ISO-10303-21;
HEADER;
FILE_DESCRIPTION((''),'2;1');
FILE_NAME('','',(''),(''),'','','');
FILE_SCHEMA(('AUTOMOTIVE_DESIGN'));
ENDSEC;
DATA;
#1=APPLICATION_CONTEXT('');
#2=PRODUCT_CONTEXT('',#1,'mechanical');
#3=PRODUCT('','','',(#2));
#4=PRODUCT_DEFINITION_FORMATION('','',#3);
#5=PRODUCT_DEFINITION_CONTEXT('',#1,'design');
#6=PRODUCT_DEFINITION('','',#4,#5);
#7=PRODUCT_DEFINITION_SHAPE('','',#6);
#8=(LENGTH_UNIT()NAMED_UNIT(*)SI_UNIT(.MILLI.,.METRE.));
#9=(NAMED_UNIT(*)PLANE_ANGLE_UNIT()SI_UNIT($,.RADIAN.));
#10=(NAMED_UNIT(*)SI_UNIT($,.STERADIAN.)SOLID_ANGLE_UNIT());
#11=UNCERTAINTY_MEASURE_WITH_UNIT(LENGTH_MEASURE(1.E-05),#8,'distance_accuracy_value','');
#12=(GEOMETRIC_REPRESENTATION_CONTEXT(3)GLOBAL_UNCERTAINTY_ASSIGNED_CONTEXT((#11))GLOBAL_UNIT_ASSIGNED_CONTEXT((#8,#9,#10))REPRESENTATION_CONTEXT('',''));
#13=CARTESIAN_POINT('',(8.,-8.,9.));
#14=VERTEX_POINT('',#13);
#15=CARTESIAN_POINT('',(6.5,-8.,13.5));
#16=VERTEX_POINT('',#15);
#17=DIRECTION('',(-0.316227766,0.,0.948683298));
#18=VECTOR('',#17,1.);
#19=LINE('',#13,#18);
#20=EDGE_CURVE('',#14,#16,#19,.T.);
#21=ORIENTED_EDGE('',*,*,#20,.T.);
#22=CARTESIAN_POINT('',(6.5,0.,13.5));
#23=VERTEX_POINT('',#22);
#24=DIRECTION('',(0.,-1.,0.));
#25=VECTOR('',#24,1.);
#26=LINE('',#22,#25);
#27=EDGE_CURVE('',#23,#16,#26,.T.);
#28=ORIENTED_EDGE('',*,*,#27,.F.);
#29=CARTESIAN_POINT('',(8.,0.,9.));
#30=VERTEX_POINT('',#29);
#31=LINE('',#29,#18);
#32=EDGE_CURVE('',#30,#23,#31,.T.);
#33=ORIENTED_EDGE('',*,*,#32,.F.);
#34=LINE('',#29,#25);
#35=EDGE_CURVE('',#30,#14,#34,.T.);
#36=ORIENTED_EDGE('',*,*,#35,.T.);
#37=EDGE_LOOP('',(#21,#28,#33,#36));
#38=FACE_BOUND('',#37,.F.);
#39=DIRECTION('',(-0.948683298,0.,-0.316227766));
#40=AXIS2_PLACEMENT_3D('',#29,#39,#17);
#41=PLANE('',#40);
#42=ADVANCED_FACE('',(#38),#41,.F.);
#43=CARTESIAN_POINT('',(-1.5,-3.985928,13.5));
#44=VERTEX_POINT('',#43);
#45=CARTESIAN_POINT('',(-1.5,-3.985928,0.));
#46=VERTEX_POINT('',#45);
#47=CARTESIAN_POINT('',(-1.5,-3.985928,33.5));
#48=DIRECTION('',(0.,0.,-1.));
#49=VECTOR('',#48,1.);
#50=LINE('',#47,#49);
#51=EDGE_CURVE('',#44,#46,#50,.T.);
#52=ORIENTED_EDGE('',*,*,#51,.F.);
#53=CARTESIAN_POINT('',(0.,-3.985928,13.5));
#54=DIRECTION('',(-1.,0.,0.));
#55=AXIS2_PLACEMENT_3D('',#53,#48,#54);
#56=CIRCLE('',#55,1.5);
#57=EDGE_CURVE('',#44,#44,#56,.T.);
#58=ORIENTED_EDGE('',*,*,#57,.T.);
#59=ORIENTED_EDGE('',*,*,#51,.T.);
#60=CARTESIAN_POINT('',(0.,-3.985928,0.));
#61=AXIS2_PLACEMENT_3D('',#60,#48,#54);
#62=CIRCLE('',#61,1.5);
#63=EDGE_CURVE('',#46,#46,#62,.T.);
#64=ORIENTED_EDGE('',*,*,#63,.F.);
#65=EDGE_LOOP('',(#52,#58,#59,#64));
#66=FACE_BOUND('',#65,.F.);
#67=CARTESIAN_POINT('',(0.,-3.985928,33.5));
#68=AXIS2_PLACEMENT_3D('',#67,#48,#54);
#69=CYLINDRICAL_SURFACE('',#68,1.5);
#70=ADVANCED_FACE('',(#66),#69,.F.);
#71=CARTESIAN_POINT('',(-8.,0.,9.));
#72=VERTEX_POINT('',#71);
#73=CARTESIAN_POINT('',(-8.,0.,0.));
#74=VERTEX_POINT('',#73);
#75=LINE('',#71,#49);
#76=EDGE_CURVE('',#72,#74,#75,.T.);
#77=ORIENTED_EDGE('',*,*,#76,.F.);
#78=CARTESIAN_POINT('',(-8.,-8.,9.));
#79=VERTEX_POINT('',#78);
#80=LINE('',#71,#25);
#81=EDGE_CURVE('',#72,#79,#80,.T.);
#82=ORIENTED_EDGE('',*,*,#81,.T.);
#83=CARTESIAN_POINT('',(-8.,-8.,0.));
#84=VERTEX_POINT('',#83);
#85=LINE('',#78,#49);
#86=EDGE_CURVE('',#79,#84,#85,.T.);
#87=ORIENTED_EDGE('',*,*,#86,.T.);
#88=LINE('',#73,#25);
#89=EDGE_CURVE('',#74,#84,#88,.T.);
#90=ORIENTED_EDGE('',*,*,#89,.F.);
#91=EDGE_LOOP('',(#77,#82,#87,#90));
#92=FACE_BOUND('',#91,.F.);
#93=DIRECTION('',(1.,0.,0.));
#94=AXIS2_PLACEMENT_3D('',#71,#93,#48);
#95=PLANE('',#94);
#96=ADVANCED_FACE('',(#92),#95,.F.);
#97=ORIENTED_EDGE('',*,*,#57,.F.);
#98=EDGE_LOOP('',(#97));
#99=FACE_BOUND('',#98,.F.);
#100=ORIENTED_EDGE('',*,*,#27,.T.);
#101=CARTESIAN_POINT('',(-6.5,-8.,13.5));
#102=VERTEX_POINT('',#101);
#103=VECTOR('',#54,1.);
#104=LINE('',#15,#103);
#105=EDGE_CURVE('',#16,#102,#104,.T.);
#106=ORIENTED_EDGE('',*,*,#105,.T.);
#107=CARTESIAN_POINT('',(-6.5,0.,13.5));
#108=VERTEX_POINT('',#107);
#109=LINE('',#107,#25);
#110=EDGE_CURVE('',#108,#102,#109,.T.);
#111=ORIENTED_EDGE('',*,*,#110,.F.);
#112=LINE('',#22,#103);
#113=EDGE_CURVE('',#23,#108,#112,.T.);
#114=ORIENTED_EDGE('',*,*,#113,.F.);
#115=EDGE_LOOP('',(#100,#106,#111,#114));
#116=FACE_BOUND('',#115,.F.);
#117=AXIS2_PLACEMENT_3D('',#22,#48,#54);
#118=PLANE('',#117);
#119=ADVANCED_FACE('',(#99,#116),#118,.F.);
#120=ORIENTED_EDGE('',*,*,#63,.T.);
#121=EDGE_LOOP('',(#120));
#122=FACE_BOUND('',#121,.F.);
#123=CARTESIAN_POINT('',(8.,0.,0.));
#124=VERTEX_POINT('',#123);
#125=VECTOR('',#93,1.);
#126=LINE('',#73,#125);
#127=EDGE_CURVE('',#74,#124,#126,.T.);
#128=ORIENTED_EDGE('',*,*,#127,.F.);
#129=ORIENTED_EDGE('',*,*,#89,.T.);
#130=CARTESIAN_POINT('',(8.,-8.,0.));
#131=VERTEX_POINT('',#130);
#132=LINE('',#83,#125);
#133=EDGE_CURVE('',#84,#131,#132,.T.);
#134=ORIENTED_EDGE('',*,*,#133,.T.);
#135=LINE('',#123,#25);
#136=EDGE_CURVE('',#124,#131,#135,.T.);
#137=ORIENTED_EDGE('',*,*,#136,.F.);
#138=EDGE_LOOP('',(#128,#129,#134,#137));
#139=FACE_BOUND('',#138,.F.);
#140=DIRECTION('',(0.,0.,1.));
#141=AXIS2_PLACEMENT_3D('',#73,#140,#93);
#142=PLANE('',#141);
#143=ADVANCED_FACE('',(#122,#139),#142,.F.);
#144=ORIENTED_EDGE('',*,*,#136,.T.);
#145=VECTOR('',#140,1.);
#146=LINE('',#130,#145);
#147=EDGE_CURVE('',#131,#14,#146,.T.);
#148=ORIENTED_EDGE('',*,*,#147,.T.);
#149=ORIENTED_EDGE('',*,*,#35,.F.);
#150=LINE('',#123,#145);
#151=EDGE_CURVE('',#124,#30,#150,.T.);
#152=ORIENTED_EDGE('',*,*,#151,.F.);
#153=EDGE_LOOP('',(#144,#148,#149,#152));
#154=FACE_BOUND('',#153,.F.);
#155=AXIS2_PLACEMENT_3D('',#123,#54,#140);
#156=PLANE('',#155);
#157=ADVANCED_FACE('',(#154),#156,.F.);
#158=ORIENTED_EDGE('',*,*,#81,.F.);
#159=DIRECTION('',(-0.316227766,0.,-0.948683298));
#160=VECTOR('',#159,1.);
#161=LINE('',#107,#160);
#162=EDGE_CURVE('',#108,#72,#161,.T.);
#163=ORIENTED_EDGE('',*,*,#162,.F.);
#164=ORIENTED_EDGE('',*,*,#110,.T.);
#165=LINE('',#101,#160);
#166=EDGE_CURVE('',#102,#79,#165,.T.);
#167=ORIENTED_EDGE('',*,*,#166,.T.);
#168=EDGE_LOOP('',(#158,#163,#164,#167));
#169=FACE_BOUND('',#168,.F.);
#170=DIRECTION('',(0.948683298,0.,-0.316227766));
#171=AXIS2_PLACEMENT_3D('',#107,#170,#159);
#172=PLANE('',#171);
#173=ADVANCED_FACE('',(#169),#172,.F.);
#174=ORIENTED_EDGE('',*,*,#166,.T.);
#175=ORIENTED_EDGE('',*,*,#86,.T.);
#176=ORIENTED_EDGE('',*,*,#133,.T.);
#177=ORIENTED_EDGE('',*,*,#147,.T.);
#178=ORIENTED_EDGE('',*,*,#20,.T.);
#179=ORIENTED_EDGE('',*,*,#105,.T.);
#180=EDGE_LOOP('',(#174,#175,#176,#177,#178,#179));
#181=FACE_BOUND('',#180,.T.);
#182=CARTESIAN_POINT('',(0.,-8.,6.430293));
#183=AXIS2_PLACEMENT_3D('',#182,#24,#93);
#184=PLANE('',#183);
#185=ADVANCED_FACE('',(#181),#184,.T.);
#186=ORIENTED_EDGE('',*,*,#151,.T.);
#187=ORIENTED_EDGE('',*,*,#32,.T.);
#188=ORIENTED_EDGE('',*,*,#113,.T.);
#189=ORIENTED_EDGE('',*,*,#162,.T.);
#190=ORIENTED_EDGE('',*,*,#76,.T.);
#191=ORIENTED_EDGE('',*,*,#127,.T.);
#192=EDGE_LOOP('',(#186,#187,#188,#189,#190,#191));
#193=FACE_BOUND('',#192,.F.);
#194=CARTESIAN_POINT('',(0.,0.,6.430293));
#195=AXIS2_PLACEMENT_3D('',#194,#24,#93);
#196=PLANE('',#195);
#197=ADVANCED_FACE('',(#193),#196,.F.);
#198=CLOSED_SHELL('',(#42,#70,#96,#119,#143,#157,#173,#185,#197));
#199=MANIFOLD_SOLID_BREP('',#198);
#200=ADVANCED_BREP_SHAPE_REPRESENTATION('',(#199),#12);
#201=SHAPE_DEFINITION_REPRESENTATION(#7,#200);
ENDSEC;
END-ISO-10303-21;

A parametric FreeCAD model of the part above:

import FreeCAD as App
import Part
import Sketcher

doc = App.newDocument("Part")
body = doc.addObject("PartDesign::Body", "Body")

# Sketch on XZ plane
sketch1 = doc.addObject("Sketcher::SketchObject", "Sketch")
body.addObject(sketch1)
sketch1.AttachmentSupport = (doc.XZ_Plane, [""])
sketch1.MapMode = "FlatFace"
sketch1.addGeometry(Part.LineSegment(App.Vector(-8, 9, 0), App.Vector(-8, 0, 0)), False)
sketch1.addGeometry(Part.LineSegment(App.Vector(-8, 0, 0), App.Vector(8, 0, 0)), False)
sketch1.addGeometry(Part.LineSegment(App.Vector(8, 0, 0), App.Vector(8, 9, 0)), False)
sketch1.addGeometry(Part.LineSegment(App.Vector(8, 9, 0), App.Vector(6.5, 13.5, 0)), False)
sketch1.addGeometry(Part.LineSegment(App.Vector(6.5, 13.5, 0), App.Vector(-6.5, 13.5, 0)), False)
sketch1.addGeometry(Part.LineSegment(App.Vector(-6.5, 13.5, 0), App.Vector(-8, 9, 0)), False)
sketch1.addConstraint(Sketcher.Constraint("Coincident", 0, 2, 1, 1))
sketch1.addConstraint(Sketcher.Constraint("Coincident", 1, 2, 2, 1))
sketch1.addConstraint(Sketcher.Constraint("Coincident", 2, 2, 3, 1))
sketch1.addConstraint(Sketcher.Constraint("Coincident", 3, 2, 4, 1))
sketch1.addConstraint(Sketcher.Constraint("Coincident", 4, 2, 5, 1))
sketch1.addConstraint(Sketcher.Constraint("Coincident", 5, 2, 0, 1))
sketch1.addConstraint(Sketcher.Constraint("Vertical", 0))
sketch1.addConstraint(Sketcher.Constraint("Horizontal", 1))
sketch1.addConstraint(Sketcher.Constraint("Vertical", 2))
sketch1.addConstraint(Sketcher.Constraint("Horizontal", 4))
sketch1.addConstraint(Sketcher.Constraint("Symmetric", 0, 2, 1, 2, -1, 1))
sketch1.addConstraint(Sketcher.Constraint("Horizontal", 2, 2, 5, 2))
sketch1.addConstraint(Sketcher.Constraint("Equal", 3, 5))
sketch1.addConstraint(Sketcher.Constraint("DistanceX", 1, 1, 1, 2, 16.0))
sketch1.addConstraint(Sketcher.Constraint("DistanceX", 4, 2, 4, 1, 13.0))
sketch1.addConstraint(Sketcher.Constraint("DistanceY", 0, 2, 0, 1, 9.0))
sketch1.addConstraint(Sketcher.Constraint("DistanceY", -1, 1, 3, 2, 13.5))
pad1 = doc.addObject("PartDesign::Pad", "Pad")
body.addObject(pad1)
pad1.Profile = sketch1
pad1.Length = 8

# Sketch on XY plane
sketch2 = doc.addObject("Sketcher::SketchObject", "Sketch001")
body.addObject(sketch2)
sketch2.AttachmentSupport = (doc.XY_Plane, [""])
sketch2.MapMode = "FlatFace"
sketch2.AttachmentOffset = App.Placement(App.Vector(0, 0, 13.5), App.Rotation())
sketch2.addGeometry(Part.Circle(App.Vector(0, -4, 0), App.Vector(0, 0, 1), 1.5), False)
sketch2.addConstraint(Sketcher.Constraint("PointOnObject", 0, 3, -2))
sketch2.addConstraint(Sketcher.Constraint("Diameter", 0, 3.0))
sketch2.addConstraint(Sketcher.Constraint("DistanceY", 0, 3, -1, 1, 3.985928))
doc.recompute()
hole = doc.addObject("PartDesign::Hole", "Hole")
body.addObject(hole)
hole.Profile = sketch2
hole.ThreadType = "None"
hole.Diameter = 3
hole.DepthType = "Dimension"
hole.Depth = 20
hole.DrillPoint = "Flat"

doc.recompute()
